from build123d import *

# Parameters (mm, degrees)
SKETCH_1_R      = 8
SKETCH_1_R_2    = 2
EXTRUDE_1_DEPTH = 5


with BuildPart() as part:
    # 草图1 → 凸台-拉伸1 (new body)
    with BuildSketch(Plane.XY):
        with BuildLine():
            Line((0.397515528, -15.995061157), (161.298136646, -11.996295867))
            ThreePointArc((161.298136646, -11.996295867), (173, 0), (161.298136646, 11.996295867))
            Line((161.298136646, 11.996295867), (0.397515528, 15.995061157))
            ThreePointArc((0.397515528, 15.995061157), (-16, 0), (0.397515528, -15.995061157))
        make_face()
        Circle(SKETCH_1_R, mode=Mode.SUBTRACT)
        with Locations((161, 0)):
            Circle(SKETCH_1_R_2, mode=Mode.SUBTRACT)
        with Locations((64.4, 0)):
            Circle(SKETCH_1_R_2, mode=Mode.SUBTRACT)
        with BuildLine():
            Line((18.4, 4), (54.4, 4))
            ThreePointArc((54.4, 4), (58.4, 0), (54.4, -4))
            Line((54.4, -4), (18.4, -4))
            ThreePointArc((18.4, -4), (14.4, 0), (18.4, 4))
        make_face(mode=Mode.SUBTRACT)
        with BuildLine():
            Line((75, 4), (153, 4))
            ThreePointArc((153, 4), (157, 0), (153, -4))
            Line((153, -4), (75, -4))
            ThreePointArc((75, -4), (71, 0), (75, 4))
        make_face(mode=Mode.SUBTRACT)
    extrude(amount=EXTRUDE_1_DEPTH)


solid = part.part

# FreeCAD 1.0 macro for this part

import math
import FreeCAD as App
import Part
import Sketcher
from FreeCAD import Vector
Q = App.Units.Quantity

doc = App.newDocument("Part")
params = doc.addObject("Spreadsheet::Sheet", "Params")
for row, (alias, value) in enumerate([
    ("sketch1_diameter", "4 mm"),
    ("sketch1_diameter2", "16 mm"),
    ("sketch1_radius", "12 mm"),
    ("sketch1_radius2", "16 mm"),
    ("sketch1_radius3", "4 mm"),
    ("pad1_length", "5 mm"),
], start=1):
    params.set(f"A{row}", alias)
    params.set(f"B{row}", "=" + value)
    params.setAlias(f"B{row}", alias)

body = doc.addObject("PartDesign::Body", "Body")

sketch1 = body.newObject("Sketcher::SketchObject", "Sketch")
sketch1.AttachmentSupport = (doc.getObject("XY_Plane"), [""])
sketch1.MapMode = "FlatFace"
sketch1.addGeometry(Part.LineSegment(Vector(0.4, -16, 0), Vector(161.3, -12, 0)), False)
sketch1.addGeometry(Part.ArcOfCircle(Part.Circle(Vector(161, 0, 0), Vector(0, 0, 1), 12), math.radians(-89), math.radians(89)), False)
sketch1.addGeometry(Part.LineSegment(Vector(161.3, 12, 0), Vector(0.4, 16, 0)), False)
sketch1.addGeometry(Part.ArcOfCircle(Part.Circle(Vector(0, 0, 0), Vector(0, 0, 1), 16), math.radians(89), math.radians(271)), False)
sketch1.addGeometry(Part.ArcOfCircle(Part.Circle(Vector(18.4, 0, 0), Vector(0, 0, 1), 4), math.radians(90), math.radians(270)), False)
sketch1.addGeometry(Part.LineSegment(Vector(18.4, 4, 0), Vector(54.4, 4, 0)), False)
sketch1.addGeometry(Part.ArcOfCircle(Part.Circle(Vector(54.4, 0, 0), Vector(0, 0, 1), 4), math.radians(-90), math.radians(90)), False)
sketch1.addGeometry(Part.LineSegment(Vector(54.4, -4, 0), Vector(18.4, -4, 0)), False)
sketch1.addGeometry(Part.Circle(Vector(64.4, 0, 0), Vector(0, 0, 1), 2), False)
sketch1.addGeometry(Part.Circle(Vector(161, 0, 0), Vector(0, 0, 1), 2), False)
sketch1.addGeometry(Part.Circle(Vector(0, 0, 0), Vector(0, 0, 1), 8), False)
sketch1.addGeometry(Part.ArcOfCircle(Part.Circle(Vector(75, 0, 0), Vector(0, 0, 1), 4), math.radians(90), math.radians(270)), False)
sketch1.addGeometry(Part.LineSegment(Vector(75, 4, 0), Vector(153, 4, 0)), False)
sketch1.addGeometry(Part.ArcOfCircle(Part.Circle(Vector(153, 0, 0), Vector(0, 0, 1), 4), math.radians(-90), math.radians(90)), False)
sketch1.addGeometry(Part.LineSegment(Vector(153, -4, 0), Vector(75, -4, 0)), False)
sketch1.addConstraint(Sketcher.Constraint("Tangent", 0, 2, 1, 1))
sketch1.addConstraint(Sketcher.Constraint("Tangent", 1, 2, 2, 1))
sketch1.addConstraint(Sketcher.Constraint("Tangent", 2, 2, 3, 1))
sketch1.addConstraint(Sketcher.Constraint("Tangent", 3, 2, 0, 1))
sketch1.addConstraint(Sketcher.Constraint("Tangent", 4, 1, 5, 1))
sketch1.addConstraint(Sketcher.Constraint("Tangent", 5, 2, 6, 2))
sketch1.addConstraint(Sketcher.Constraint("Tangent", 6, 1, 7, 1))
sketch1.addConstraint(Sketcher.Constraint("Tangent", 7, 2, 4, 2))
sketch1.addConstraint(Sketcher.Constraint("Tangent", 11, 1, 12, 1))
sketch1.addConstraint(Sketcher.Constraint("Tangent", 12, 2, 13, 2))
sketch1.addConstraint(Sketcher.Constraint("Tangent", 13, 1, 14, 1))
sketch1.addConstraint(Sketcher.Constraint("Tangent", 14, 2, 11, 2))
sketch1.addConstraint(Sketcher.Constraint("Horizontal", 5))
sketch1.addConstraint(Sketcher.Constraint("Horizontal", 7))
sketch1.addConstraint(Sketcher.Constraint("Horizontal", 12))
sketch1.addConstraint(Sketcher.Constraint("Horizontal", 14))
sketch1.addConstraint(Sketcher.Constraint("Coincident", 3, 3, -1, 1))
sketch1.addConstraint(Sketcher.Constraint("Coincident", 10, 3, -1, 1))
sketch1.addConstraint(Sketcher.Constraint("Coincident", 9, 3, 1, 3))
sketch1.addConstraint(Sketcher.Constraint("Equal", 8, 9))
sketch1.addConstraint(Sketcher.Constraint("Equal", 6, 11))
sketch1.addConstraint(Sketcher.Constraint("PointOnObject", 1, 3, -1))
sketch1.addConstraint(Sketcher.Constraint("PointOnObject", 4, 3, -1))
sketch1.addConstraint(Sketcher.Constraint("PointOnObject", 8, 3, -1))
sketch1.addConstraint(Sketcher.Constraint("PointOnObject", 11, 3, -1))
sketch1.addConstraint(Sketcher.Constraint("Diameter", 8, Q("4 mm")))
sketch1.addConstraint(Sketcher.Constraint("Diameter", 10, Q("16 mm")))
sketch1.addConstraint(Sketcher.Constraint("Radius", 1, Q("12 mm")))
sketch1.addConstraint(Sketcher.Constraint("Radius", 3, Q("16 mm")))
sketch1.addConstraint(Sketcher.Constraint("Radius", 4, Q("4 mm")))
sketch1.addConstraint(Sketcher.Constraint("DistanceX", 5, 1, 5, 2, Q("36 mm")))
sketch1.addConstraint(Sketcher.Constraint("DistanceX", 12, 1, 12, 2, Q("78 mm")))
sketch1.addConstraint(Sketcher.Constraint("DistanceX", -1, 1, 1, 3, Q("161 mm")))
sketch1.addConstraint(Sketcher.Constraint("DistanceX", -1, 1, 11, 3, Q("75 mm")))
sketch1.addConstraint(Sketcher.Constraint("DistanceX", 6, 3, 8, 3, Q("10 mm")))
sketch1.addConstraint(Sketcher.Constraint("DistanceX", -1, 1, 4, 3, Q("18.4 mm")))
sketch1.setExpression("Constraints[25]", "Params.sketch1_diameter")
sketch1.setExpression("Constraints[26]", "Params.sketch1_diameter2")
sketch1.setExpression("Constraints[27]", "Params.sketch1_radius")
sketch1.setExpression("Constraints[28]", "Params.sketch1_radius2")
sketch1.setExpression("Constraints[29]", "Params.sketch1_radius3")
pad1 = body.newObject("PartDesign::Pad", "Pad")
pad1.Profile = sketch1
pad1.setExpression("Length", "Params.pad1_length")

doc.recompute()
